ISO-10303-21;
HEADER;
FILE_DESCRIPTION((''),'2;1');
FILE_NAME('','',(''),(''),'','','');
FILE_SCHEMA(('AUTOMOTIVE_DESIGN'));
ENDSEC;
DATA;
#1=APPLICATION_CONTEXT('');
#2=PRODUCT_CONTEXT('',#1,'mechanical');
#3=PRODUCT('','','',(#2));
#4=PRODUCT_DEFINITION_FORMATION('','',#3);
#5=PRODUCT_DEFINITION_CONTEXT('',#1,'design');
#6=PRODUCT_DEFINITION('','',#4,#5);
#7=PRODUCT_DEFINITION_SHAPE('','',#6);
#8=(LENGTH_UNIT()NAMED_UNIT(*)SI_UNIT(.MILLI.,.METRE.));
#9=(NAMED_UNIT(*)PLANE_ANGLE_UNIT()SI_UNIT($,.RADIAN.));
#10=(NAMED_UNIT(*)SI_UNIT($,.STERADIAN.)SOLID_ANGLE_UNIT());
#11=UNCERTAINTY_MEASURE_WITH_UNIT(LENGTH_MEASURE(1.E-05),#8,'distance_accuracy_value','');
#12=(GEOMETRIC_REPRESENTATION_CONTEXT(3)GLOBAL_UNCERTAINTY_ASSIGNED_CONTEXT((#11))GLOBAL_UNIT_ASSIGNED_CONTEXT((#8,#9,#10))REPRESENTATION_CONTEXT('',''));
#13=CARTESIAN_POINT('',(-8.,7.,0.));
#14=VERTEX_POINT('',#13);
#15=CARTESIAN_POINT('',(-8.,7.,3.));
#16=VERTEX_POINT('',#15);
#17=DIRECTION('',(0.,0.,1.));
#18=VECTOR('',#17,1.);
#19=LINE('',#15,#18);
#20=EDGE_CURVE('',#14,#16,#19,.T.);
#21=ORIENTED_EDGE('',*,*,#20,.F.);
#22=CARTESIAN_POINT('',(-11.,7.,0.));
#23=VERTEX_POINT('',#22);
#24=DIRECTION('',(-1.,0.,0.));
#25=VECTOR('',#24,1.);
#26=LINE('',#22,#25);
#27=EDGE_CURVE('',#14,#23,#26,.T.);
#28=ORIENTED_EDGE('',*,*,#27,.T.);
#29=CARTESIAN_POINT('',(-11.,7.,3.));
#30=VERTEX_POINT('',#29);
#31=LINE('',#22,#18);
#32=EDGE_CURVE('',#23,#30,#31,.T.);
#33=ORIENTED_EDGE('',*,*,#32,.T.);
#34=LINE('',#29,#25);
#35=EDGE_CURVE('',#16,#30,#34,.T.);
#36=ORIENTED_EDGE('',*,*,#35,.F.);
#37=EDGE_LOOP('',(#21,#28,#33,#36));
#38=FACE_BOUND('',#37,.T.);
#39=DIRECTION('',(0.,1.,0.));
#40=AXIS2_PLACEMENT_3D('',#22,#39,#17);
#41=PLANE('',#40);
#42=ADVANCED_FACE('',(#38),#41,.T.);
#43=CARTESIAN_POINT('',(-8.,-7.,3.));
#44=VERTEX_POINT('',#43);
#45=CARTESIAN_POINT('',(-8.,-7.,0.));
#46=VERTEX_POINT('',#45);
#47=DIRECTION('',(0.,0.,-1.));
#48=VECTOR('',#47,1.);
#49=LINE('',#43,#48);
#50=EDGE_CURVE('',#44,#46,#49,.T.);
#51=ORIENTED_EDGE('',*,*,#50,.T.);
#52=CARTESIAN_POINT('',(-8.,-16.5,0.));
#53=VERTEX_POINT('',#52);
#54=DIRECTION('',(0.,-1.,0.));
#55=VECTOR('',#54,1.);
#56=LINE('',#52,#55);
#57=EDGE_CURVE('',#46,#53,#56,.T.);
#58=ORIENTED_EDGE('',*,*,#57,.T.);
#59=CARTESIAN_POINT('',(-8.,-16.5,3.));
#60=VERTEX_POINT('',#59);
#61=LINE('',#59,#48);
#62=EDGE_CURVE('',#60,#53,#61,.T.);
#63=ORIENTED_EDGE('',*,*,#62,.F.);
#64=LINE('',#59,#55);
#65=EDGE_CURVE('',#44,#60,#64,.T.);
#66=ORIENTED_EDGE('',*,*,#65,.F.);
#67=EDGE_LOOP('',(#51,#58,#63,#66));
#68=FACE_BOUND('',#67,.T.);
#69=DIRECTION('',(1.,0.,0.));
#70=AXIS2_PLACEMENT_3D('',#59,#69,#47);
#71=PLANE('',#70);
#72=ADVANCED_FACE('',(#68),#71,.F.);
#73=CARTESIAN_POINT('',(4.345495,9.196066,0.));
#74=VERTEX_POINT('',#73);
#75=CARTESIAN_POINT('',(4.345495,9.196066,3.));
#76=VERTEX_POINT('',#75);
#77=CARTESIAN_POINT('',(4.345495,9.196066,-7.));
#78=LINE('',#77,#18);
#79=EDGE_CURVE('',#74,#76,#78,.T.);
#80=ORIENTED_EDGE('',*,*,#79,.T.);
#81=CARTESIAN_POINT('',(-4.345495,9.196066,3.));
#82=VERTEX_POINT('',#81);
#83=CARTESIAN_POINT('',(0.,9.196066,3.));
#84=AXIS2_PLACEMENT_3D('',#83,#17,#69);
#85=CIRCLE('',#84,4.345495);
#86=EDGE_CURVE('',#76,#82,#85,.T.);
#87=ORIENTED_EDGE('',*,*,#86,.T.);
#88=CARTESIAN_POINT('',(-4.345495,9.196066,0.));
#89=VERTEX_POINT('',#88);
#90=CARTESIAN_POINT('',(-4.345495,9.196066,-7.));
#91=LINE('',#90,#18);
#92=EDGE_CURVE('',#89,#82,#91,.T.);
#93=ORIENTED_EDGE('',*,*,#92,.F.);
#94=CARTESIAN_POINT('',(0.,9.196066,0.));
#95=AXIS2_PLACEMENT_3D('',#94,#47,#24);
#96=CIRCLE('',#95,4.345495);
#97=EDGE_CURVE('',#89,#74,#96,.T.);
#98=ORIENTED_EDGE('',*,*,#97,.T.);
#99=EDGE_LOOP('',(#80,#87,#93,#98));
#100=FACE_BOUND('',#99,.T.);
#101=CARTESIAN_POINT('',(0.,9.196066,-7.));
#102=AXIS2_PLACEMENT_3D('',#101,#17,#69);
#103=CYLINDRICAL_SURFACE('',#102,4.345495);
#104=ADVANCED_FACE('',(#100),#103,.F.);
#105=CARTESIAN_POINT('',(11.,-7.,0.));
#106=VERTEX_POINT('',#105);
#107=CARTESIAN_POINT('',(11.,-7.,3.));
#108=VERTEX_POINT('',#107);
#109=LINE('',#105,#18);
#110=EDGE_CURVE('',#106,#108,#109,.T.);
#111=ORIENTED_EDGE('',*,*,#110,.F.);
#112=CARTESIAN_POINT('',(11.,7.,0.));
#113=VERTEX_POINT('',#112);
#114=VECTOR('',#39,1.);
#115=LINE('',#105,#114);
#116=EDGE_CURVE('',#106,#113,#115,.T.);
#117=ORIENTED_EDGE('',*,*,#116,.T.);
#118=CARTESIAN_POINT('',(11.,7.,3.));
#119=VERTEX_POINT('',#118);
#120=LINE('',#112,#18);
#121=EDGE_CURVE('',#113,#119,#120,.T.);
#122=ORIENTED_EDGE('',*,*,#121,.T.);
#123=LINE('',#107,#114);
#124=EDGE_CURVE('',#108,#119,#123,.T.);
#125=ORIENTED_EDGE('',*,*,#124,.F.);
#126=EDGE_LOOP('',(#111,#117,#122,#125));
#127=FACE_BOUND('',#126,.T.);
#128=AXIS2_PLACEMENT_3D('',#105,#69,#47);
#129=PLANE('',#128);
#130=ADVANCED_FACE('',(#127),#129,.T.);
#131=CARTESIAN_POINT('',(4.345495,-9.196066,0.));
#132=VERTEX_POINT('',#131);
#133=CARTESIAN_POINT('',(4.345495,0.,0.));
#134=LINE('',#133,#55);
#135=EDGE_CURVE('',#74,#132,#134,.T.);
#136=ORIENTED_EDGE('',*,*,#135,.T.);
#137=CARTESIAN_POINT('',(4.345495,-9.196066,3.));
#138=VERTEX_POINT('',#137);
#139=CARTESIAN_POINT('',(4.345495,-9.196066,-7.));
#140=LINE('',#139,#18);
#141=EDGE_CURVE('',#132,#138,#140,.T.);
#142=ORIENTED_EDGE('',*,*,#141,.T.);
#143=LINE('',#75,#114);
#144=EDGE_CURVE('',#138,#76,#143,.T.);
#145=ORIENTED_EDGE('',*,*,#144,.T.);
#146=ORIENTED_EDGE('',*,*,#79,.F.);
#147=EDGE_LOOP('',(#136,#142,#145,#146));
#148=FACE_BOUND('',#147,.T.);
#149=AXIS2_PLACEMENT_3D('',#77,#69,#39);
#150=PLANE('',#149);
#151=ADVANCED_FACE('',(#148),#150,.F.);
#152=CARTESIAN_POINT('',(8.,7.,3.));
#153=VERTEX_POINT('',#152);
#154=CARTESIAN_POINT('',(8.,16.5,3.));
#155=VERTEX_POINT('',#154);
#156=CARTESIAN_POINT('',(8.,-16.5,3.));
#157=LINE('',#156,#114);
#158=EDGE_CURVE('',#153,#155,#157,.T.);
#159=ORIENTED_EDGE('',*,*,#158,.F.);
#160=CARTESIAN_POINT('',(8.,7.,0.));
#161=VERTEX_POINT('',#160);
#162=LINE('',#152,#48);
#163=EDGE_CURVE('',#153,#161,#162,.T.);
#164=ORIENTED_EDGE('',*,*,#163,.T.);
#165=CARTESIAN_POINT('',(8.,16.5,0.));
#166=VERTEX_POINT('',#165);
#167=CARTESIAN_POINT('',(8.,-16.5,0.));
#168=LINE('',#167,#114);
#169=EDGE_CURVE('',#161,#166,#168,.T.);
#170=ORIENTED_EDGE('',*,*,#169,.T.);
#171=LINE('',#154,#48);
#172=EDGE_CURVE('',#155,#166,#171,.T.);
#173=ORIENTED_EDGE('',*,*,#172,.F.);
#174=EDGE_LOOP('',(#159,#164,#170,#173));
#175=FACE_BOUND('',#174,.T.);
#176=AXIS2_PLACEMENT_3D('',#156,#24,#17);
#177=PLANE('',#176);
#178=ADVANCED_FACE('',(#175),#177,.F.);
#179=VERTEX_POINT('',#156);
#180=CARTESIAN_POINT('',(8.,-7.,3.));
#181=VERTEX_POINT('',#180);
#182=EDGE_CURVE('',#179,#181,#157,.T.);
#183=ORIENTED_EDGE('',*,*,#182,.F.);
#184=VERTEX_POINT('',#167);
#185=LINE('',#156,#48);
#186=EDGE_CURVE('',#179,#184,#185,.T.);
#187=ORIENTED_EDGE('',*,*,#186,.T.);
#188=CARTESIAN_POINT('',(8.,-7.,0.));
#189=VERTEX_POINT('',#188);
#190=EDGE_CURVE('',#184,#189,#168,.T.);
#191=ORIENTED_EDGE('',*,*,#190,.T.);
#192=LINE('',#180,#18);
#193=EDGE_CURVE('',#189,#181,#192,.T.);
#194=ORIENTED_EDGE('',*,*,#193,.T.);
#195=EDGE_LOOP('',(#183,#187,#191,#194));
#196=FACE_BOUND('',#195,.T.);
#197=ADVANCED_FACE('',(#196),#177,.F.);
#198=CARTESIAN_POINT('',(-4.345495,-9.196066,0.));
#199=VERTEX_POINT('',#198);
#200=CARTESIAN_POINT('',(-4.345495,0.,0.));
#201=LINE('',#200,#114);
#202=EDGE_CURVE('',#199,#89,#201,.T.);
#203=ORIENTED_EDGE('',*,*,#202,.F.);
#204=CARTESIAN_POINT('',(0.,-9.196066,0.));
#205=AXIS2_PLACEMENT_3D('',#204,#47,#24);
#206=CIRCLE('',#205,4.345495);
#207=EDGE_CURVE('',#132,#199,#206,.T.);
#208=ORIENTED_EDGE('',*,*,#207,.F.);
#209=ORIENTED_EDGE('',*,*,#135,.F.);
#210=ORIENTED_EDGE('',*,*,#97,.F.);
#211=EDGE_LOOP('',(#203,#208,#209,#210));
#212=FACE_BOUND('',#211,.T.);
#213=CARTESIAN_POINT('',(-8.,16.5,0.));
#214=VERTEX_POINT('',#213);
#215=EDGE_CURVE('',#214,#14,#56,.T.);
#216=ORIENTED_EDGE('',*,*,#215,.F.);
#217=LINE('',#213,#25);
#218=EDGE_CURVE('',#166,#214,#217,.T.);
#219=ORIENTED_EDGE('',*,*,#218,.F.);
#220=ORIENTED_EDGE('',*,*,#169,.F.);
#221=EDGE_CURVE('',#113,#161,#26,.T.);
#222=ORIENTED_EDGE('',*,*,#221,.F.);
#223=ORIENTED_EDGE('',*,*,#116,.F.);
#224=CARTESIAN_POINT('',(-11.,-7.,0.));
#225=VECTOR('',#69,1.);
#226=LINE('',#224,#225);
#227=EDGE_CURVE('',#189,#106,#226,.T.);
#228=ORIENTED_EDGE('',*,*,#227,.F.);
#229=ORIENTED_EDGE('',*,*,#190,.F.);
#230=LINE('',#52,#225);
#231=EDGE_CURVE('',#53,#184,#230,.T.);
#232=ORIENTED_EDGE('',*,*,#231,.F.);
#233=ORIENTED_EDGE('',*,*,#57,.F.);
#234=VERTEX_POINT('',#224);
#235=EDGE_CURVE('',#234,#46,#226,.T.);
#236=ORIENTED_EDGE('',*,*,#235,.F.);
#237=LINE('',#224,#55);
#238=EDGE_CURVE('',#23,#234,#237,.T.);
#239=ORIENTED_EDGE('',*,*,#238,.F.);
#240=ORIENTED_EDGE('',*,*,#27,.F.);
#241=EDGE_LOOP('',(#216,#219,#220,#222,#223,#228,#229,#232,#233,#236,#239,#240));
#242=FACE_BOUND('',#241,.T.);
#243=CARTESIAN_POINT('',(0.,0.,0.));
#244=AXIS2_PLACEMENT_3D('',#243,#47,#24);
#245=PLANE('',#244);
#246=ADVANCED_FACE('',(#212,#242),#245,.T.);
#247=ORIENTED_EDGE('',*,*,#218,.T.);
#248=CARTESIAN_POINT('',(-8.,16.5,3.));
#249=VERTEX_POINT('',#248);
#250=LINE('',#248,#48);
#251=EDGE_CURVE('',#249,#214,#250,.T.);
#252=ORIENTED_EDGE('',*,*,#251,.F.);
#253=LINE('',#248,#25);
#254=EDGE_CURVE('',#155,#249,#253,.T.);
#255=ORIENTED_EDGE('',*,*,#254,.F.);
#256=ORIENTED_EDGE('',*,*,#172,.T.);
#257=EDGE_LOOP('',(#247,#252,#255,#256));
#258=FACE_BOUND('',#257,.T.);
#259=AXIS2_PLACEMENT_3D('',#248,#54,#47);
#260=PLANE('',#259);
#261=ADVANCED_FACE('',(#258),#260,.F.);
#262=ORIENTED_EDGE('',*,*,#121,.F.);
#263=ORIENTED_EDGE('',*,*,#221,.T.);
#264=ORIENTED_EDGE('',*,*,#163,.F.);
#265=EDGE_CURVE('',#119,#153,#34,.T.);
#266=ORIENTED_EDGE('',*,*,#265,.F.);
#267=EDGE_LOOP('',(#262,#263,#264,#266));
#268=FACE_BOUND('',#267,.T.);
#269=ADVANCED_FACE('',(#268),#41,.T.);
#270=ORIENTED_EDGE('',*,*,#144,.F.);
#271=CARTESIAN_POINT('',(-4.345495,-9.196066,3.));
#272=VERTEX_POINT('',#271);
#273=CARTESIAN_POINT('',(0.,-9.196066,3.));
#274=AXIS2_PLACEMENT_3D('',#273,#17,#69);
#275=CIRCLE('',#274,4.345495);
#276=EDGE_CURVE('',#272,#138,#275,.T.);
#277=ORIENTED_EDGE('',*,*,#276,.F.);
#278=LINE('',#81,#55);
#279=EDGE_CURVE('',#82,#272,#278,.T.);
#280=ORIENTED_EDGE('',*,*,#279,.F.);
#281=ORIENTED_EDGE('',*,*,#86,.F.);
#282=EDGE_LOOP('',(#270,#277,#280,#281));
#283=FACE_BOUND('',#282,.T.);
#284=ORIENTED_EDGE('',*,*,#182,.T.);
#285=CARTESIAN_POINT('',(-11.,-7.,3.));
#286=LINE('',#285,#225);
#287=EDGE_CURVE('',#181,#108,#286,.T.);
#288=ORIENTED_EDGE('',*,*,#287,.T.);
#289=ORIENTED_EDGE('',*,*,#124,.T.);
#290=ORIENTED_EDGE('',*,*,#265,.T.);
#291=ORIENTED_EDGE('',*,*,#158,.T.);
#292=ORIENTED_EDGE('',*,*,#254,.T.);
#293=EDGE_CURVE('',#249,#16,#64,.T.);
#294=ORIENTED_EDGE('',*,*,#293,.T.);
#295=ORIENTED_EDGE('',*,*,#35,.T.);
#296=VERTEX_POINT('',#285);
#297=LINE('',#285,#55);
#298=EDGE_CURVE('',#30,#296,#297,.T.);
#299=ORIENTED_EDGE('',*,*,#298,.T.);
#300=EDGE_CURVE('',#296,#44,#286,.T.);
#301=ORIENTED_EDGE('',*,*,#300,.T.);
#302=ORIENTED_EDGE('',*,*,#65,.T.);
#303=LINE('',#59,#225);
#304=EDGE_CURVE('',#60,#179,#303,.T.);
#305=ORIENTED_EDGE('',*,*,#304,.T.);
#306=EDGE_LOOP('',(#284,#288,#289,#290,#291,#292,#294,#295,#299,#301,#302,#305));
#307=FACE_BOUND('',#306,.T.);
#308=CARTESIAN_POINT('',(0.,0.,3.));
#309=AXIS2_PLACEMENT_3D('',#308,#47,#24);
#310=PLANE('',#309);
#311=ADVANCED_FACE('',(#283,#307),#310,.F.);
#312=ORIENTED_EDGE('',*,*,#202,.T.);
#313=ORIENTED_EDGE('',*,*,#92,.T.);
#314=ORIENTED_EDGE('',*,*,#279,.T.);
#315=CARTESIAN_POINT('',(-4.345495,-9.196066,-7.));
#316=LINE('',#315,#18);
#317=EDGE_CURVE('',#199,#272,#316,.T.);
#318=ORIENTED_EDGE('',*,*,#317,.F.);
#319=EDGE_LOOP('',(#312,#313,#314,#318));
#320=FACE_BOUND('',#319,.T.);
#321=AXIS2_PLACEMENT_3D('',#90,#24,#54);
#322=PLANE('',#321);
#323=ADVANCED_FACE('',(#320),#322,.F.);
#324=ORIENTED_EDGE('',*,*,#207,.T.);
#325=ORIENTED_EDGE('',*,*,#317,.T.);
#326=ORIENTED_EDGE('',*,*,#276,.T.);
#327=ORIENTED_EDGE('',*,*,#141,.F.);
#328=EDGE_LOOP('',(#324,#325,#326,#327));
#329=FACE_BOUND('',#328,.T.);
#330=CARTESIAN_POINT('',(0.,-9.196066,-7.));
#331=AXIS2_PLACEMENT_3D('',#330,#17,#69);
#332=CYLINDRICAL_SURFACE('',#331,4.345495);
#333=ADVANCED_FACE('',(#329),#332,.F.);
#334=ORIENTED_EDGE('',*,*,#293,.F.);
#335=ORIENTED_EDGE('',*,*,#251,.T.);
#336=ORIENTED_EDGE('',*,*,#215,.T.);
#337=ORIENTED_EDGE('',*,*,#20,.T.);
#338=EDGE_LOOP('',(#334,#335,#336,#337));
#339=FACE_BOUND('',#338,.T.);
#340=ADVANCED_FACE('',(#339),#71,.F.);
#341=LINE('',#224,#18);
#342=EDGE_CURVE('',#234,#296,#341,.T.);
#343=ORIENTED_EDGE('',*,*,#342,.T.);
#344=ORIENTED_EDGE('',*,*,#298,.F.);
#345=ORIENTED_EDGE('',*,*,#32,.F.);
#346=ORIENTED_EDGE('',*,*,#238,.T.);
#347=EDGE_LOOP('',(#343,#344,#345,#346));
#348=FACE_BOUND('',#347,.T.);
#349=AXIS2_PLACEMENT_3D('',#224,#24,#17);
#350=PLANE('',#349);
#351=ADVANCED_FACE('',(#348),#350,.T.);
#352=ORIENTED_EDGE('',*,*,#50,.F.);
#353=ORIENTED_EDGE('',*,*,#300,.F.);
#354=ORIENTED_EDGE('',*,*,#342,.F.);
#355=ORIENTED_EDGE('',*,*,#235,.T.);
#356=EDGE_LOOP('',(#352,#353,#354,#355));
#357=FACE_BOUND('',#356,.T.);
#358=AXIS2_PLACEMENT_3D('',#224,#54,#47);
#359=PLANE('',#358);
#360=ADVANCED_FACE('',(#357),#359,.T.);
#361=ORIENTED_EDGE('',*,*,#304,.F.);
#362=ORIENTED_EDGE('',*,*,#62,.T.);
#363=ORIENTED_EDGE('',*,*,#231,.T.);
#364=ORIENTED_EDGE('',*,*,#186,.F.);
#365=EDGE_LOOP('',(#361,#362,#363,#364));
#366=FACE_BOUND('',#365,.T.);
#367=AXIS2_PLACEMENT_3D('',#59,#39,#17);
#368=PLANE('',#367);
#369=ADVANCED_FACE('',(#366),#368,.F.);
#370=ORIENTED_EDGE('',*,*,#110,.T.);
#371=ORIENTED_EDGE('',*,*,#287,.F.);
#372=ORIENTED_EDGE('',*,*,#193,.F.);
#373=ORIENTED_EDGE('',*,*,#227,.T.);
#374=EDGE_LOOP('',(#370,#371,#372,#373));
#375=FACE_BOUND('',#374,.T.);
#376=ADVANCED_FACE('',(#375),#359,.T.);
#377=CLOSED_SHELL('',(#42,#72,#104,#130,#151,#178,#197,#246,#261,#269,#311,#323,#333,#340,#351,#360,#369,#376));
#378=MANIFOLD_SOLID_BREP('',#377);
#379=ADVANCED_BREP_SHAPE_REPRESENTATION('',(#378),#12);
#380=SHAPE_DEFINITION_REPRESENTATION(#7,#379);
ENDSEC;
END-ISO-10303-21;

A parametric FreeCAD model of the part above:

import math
import FreeCAD as App
import Part
import Sketcher
Q = App.Units.Quantity


def add_polygon(sketch, points):
    """Adds a closed chain of lines whose ends are joined by coincident constraints."""
    first, n = sketch.GeometryCount, len(points)
    for a, b in zip(points, points[1:] + points[:1]):
        sketch.addGeometry(Part.LineSegment(App.Vector(*a, 0), App.Vector(*b, 0)), False)
    for i in range(n):
        sketch.addConstraint(Sketcher.Constraint("Coincident", first + i, 2, first + (i + 1) % n, 1))

doc = App.newDocument("Part")
body = doc.addObject("PartDesign::Body", "Body")

# Sketch on XY plane
sketch1 = doc.addObject("Sketcher::SketchObject", "Sketch")
body.addObject(sketch1)
sketch1.AttachmentSupport = (doc.XY_Plane, [""])
sketch1.MapMode = "FlatFace"
add_polygon(sketch1, [(-8, 16.5), (-8, -16.5), (8, -16.5), (8, 16.5)])  # lines 0-3
sketch1.addConstraint([
    Sketcher.Constraint("Vertical", 0),
    Sketcher.Constraint("Horizontal", 1),
    Sketcher.Constraint("Vertical", 2),
    Sketcher.Constraint("Horizontal", 3),
    Sketcher.Constraint("Symmetric", 0, 2, 2, 2, -1, 1),
    Sketcher.Constraint("DistanceX", 1, 1, 1, 2, Q("16 mm")),
    Sketcher.Constraint("DistanceY", 0, 2, 0, 1, Q("33 mm")),
])
pad1 = doc.addObject("PartDesign::Pad", "Pad")
body.addObject(pad1)
pad1.Profile = sketch1
pad1.Length = 3

# Sketch on XY plane
sketch2 = doc.addObject("Sketcher::SketchObject", "Sketch001")
body.addObject(sketch2)
sketch2.AttachmentSupport = (doc.XY_Plane, [""])
sketch2.MapMode = "FlatFace"
sketch2.AttachmentOffset = App.Placement(App.Vector(0, 0, 3), App.Rotation())
add_polygon(sketch2, [(-11, 7), (-11, -7), (11, -7), (11, 7)])  # lines 0-3
sketch2.addConstraint([
    Sketcher.Constraint("Vertical", 0),
    Sketcher.Constraint("Horizontal", 1),
    Sketcher.Constraint("Vertical", 2),
    Sketcher.Constraint("Horizontal", 3),
    Sketcher.Constraint("Symmetric", 0, 2, 2, 2, -1, 1),
    Sketcher.Constraint("DistanceX", 1, 1, 1, 2, Q("22 mm")),
    Sketcher.Constraint("DistanceY", 0, 2, 0, 1, Q("14 mm")),
])
pad2 = doc.addObject("PartDesign::Pad", "Pad001")
body.addObject(pad2)
pad2.Profile = sketch2
pad2.Length = 3
pad2.Reversed = True

# Sketch on XY plane
sketch3 = doc.addObject("Sketcher::SketchObject", "Sketch002")
body.addObject(sketch3)
sketch3.AttachmentSupport = (doc.XY_Plane, [""])
sketch3.MapMode = "FlatFace"
sketch3.AttachmentOffset = App.Placement(App.Vector(0, 0, 3), App.Rotation())
sketch3.addGeometry([
    Part.LineSegment(App.Vector(4.345495, -9.196066, 0), App.Vector(4.345495, 9.196066, 0)),
    Part.ArcOfCircle(Part.Circle(App.Vector(0, 9.196066, 0), App.Vector(0, 0, 1), 4.345495), math.radians(0), math.radians(180)),
    Part.LineSegment(App.Vector(-4.345495, 9.196066, 0), App.Vector(-4.345495, -9.196066, 0)),
    Part.ArcOfCircle(Part.Circle(App.Vector(0, -9.196066, 0), App.Vector(0, 0, 1), 4.345495), math.radians(180), math.radians(360)),
], False)
sketch3.addConstraint([
    Sketcher.Constraint("Tangent", 0, 2, 1, 1),
    Sketcher.Constraint("Tangent", 1, 2, 2, 1),
    Sketcher.Constraint("Tangent", 2, 2, 3, 1),
    Sketcher.Constraint("Tangent", 3, 2, 0, 1),
    Sketcher.Constraint("Vertical", 0),
    Sketcher.Constraint("Vertical", 2),
    Sketcher.Constraint("Symmetric", 1, 3, 3, 3, -1, 1),
    Sketcher.Constraint("Radius", 1, Q("4.345495 mm")),
    Sketcher.Constraint("DistanceY", 0, 1, 0, 2, Q("18.392132 mm")),
])
pocket1 = doc.addObject("PartDesign::Pocket", "Pocket")
body.addObject(pocket1)
pocket1.Profile = sketch3
pocket1.Length = 10

doc.recompute()
